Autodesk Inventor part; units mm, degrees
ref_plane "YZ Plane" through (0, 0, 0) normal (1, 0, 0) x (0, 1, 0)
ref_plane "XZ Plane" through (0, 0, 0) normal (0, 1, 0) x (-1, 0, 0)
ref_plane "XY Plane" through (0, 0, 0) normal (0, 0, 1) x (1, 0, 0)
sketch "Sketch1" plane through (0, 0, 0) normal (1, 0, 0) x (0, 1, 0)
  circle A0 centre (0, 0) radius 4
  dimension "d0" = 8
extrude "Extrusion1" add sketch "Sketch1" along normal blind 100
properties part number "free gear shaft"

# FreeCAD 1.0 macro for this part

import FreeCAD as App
import Part
import Sketcher

V = App.Vector
Q = App.Units.Quantity

doc = App.newDocument("Part")
params = doc.addObject("Spreadsheet::Sheet", "Params")
for row, (alias, value) in enumerate([
    ("sketch1_diameter", "8 mm"),
    ("pad1_length", "100 mm"),
], start=1):
    params.set(f"A{row}", alias)
    params.set(f"B{row}", "=" + value)
    params.setAlias(f"B{row}", alias)

body = doc.addObject("PartDesign::Body", "Body")

sketch1 = doc.addObject("Sketcher::SketchObject", "Sketch")
body.addObject(sketch1)
sketch1.AttachmentSupport = (doc.YZ_Plane, [""])
sketch1.MapMode = "FlatFace"
sketch1.addGeometry(Part.Circle(V(0, 0, 0), V(0, 0, 1), 4), False)
sketch1.addConstraint([
    Sketcher.Constraint("Coincident", 0, 3, -1, 1),
    Sketcher.Constraint("Diameter", 0, Q("8 mm")),
])
sketch1.setExpression("Constraints[1]", "Params.sketch1_diameter")
pad1 = doc.addObject("PartDesign::Pad", "Pad")
body.addObject(pad1)
pad1.Profile = sketch1
pad1.setExpression("Length", "Params.pad1_length")

doc.recompute()
